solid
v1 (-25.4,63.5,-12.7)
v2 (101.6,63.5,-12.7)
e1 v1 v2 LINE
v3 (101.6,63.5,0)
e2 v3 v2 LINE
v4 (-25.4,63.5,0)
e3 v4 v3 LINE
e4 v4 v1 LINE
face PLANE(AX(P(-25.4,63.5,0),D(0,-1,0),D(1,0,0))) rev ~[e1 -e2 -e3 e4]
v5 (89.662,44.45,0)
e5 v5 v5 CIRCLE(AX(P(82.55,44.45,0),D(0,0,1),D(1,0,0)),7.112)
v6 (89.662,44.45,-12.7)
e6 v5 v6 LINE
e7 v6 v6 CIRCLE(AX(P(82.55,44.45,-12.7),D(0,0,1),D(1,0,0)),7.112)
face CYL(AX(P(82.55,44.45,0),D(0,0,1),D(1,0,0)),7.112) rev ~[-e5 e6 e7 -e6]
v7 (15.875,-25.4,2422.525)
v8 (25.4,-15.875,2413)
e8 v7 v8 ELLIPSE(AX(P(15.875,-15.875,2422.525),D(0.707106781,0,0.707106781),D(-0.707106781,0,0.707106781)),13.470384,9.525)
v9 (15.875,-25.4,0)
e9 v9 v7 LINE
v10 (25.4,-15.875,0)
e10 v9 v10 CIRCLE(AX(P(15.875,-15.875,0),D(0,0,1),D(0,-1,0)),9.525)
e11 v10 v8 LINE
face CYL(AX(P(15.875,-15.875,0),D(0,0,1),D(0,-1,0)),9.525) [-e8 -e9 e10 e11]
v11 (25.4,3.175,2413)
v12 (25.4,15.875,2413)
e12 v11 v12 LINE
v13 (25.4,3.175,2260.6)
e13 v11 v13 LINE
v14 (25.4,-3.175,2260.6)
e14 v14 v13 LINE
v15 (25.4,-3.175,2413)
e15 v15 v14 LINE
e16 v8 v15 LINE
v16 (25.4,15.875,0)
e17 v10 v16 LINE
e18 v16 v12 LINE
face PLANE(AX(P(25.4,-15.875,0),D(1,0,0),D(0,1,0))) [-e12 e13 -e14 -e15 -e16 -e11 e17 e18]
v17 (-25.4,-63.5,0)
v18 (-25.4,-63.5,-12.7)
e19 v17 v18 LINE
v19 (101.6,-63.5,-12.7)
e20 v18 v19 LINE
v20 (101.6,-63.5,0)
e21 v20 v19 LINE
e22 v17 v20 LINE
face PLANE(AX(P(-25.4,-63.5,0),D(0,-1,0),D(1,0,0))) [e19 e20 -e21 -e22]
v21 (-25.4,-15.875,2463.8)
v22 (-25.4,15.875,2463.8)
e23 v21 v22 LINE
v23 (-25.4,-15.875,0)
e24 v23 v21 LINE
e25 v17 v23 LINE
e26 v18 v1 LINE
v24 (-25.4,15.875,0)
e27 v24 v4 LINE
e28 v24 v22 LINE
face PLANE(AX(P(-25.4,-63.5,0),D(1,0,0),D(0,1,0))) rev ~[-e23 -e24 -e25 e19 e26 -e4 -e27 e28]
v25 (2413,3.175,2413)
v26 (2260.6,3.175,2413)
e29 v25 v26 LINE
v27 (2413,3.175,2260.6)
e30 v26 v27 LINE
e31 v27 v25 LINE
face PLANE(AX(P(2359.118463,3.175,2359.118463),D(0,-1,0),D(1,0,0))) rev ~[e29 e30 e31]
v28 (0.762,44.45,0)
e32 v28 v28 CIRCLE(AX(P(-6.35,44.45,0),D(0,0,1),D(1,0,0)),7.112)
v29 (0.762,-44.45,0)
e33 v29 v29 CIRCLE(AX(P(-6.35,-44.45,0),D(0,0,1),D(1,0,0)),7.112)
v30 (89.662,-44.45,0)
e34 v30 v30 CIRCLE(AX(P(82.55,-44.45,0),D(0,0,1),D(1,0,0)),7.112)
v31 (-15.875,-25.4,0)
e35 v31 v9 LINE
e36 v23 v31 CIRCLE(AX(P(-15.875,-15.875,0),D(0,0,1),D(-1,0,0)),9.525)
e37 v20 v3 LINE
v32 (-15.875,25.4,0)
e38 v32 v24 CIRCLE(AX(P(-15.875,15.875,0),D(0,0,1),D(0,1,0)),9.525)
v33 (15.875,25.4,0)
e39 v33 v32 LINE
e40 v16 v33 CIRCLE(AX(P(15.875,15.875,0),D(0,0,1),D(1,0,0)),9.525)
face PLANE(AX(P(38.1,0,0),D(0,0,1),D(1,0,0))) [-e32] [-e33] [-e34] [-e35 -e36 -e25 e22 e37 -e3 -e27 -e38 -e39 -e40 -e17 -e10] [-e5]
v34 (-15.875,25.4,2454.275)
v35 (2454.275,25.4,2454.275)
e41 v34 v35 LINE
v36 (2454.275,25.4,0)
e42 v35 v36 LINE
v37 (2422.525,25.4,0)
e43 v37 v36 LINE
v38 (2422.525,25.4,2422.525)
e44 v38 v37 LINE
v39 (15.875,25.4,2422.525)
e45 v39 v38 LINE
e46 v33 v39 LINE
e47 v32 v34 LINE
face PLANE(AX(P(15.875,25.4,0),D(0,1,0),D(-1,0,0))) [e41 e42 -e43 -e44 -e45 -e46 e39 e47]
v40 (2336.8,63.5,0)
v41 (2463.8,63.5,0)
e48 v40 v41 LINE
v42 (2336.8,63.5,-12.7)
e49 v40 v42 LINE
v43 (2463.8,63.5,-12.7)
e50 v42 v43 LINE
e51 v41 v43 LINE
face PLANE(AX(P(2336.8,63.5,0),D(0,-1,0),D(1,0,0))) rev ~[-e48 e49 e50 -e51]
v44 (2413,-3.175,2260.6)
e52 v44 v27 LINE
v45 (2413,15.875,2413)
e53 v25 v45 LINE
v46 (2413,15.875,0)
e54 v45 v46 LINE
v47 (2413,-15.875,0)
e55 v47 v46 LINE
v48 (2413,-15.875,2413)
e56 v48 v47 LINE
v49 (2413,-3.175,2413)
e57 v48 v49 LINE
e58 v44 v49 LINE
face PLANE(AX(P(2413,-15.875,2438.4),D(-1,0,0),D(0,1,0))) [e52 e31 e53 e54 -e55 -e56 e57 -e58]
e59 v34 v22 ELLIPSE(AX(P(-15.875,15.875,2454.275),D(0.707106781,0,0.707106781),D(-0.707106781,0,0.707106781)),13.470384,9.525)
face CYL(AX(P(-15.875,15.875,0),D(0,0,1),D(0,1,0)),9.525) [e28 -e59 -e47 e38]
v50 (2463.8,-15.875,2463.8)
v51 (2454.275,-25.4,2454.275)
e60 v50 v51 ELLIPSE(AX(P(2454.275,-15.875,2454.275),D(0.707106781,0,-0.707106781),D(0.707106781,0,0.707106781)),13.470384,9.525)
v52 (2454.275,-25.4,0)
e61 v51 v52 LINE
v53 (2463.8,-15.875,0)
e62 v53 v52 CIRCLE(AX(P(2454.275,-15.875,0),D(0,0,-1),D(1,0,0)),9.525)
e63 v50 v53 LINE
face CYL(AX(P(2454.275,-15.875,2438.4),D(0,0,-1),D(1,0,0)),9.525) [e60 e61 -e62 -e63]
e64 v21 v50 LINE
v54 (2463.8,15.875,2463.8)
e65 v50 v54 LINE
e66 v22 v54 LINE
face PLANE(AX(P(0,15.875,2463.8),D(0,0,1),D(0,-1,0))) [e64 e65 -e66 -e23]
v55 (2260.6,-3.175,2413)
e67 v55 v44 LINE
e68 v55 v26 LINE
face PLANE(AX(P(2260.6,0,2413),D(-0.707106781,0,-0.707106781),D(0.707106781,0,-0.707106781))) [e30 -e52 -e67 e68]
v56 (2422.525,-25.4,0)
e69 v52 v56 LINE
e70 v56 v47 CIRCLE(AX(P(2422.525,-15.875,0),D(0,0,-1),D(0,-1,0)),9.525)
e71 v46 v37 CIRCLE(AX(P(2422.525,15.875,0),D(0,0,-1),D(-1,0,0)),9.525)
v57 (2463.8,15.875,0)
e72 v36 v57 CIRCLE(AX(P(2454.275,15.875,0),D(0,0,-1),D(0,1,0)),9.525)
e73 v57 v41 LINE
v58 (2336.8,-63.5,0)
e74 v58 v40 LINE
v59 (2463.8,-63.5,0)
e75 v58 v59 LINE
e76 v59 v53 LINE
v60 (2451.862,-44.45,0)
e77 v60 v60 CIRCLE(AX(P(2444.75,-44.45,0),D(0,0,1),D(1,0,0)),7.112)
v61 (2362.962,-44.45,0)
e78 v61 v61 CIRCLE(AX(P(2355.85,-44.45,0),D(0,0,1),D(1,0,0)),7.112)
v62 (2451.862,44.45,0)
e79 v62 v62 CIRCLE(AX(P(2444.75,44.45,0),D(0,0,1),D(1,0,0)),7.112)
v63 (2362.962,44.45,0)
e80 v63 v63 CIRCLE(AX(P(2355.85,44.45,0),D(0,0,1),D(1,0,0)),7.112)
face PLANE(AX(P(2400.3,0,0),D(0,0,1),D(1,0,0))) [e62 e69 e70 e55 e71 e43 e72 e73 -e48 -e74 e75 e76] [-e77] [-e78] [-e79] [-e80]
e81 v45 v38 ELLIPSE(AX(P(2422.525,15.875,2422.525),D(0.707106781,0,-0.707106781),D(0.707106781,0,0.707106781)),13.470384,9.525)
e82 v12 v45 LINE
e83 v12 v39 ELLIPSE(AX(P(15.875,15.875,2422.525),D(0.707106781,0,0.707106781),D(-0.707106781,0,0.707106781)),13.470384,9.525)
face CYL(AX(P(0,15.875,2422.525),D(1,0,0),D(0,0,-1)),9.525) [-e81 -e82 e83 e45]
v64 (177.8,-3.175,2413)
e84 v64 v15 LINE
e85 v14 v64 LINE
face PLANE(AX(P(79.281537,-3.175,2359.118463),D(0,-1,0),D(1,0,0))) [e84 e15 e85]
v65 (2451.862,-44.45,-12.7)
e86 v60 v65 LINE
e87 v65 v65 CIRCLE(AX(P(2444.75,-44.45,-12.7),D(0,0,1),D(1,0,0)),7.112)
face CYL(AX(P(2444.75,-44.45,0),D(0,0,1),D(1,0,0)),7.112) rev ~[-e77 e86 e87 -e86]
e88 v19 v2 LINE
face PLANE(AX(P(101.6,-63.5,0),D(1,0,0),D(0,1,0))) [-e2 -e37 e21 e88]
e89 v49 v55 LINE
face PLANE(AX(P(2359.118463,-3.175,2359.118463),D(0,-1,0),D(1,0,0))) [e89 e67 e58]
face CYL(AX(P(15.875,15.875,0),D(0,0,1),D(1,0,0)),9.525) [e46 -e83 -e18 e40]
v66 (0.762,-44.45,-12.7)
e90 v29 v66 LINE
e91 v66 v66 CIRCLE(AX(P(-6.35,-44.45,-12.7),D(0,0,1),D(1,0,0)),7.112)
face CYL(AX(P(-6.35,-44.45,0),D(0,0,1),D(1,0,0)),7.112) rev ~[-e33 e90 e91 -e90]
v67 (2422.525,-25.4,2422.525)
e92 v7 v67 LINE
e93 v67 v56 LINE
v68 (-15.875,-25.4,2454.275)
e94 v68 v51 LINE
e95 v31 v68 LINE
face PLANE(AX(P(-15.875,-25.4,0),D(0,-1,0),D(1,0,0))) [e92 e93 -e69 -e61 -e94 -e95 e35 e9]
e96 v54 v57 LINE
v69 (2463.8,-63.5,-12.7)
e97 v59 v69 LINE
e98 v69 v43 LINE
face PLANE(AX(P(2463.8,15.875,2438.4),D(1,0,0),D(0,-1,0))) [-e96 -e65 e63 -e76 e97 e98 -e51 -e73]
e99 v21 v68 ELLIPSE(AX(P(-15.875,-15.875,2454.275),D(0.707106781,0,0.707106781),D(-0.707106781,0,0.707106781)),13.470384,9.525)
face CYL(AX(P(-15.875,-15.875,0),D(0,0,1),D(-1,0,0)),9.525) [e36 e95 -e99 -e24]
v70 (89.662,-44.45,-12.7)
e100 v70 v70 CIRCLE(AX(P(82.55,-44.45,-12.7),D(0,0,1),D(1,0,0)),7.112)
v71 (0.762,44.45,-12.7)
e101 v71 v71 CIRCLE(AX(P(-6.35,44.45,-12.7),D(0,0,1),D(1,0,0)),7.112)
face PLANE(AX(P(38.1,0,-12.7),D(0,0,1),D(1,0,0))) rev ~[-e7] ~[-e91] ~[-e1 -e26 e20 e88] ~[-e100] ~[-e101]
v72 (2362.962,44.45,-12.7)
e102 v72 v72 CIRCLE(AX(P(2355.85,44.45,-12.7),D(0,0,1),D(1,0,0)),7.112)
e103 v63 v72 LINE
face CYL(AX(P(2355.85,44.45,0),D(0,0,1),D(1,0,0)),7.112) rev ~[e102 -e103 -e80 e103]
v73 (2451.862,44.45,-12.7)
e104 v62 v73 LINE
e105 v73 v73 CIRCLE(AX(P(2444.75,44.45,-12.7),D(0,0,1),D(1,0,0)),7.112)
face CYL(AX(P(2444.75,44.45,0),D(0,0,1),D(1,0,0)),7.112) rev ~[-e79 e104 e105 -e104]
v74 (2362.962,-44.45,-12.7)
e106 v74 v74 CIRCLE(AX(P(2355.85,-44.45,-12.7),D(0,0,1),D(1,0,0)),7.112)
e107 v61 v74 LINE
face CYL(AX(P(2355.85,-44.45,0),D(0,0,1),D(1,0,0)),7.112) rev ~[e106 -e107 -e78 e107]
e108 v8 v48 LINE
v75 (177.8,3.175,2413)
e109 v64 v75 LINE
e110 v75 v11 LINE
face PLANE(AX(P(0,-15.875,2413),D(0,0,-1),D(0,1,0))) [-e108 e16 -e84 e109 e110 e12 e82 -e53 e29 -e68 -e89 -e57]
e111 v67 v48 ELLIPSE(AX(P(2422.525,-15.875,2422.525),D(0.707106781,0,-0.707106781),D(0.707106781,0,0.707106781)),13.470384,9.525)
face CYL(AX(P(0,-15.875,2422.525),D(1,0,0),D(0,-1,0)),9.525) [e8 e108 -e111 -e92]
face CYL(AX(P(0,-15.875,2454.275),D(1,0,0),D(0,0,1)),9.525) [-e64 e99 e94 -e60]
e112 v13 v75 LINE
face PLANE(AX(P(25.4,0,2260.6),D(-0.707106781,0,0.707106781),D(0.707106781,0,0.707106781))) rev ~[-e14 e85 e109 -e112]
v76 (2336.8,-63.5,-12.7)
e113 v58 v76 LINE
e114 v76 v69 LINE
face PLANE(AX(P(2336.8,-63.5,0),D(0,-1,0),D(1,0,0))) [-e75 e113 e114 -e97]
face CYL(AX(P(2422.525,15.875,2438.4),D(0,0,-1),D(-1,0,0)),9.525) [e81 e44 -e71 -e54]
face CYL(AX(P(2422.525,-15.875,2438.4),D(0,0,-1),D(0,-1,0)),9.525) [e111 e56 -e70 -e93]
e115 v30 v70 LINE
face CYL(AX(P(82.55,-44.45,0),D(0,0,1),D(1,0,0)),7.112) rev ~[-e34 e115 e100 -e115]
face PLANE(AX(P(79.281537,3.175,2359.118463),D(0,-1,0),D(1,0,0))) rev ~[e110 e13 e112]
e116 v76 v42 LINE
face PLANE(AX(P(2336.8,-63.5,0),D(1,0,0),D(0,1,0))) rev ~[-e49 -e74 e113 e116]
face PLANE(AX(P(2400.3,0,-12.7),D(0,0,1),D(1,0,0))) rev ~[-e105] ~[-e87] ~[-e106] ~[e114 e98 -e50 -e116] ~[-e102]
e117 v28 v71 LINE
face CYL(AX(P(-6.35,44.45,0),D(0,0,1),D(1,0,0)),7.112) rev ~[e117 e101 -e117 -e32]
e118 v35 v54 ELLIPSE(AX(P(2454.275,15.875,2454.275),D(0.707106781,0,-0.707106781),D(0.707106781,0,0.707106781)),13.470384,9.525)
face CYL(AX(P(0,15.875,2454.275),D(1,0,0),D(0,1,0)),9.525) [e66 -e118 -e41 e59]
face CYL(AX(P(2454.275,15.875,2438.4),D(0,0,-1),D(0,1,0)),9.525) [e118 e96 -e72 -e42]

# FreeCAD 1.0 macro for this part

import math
import FreeCAD as App
import Part
import Sketcher
Q = App.Units.Quantity

doc = App.newDocument("Part")
params = doc.addObject("Spreadsheet::Sheet", "Params")
for row, (alias, value) in enumerate([
    ("sketch1_radius", "0.375 in"),
    ("sketch2_width", "96 in"),
    ("sketch3_diameter", "0.56 in"),
    ("sketch3_width", "5 in"),
    ("pad1_length", "0.5 in"),
    ("sketch4_width", "6 in"),
    ("pad2_length", "0.25 in"),
], start=1):
    params.set(f"A{row}", alias)
    params.set(f"B{row}", "=" + value)
    params.setAlias(f"B{row}", alias)

body = doc.addObject("PartDesign::Body", "Body")

# Sketch on XY plane
sketch1 = body.newObject("Sketcher::SketchObject", "Sketch")
sketch1.AttachmentSupport = (doc.getObject("XY_Plane"), [""])
sketch1.MapMode = "FlatFace"
sketch1.addGeometry([
    Part.LineSegment(App.Vector(15.875, 25.4, 0), App.Vector(-15.875, 25.4, 0)),  # 0
    Part.ArcOfCircle(Part.Circle(App.Vector(-15.875, 15.875, 0), App.Vector(0, 0, 1), 9.525), math.radians(90), math.radians(180)),  # 1
    Part.LineSegment(App.Vector(-25.4, 15.875, 0), App.Vector(-25.4, -15.875, 0)),  # 2
    Part.ArcOfCircle(Part.Circle(App.Vector(-15.875, -15.875, 0), App.Vector(0, 0, 1), 9.525), math.radians(180), math.radians(270)),  # 3
    Part.LineSegment(App.Vector(-15.875, -25.4, 0), App.Vector(15.875, -25.4, 0)),  # 4
    Part.ArcOfCircle(Part.Circle(App.Vector(15.875, -15.875, 0), App.Vector(0, 0, 1), 9.525), math.radians(-90), math.radians(0)),  # 5
    Part.LineSegment(App.Vector(25.4, -15.875, 0), App.Vector(25.4, 15.875, 0)),  # 6
    Part.ArcOfCircle(Part.Circle(App.Vector(15.875, 15.875, 0), App.Vector(0, 0, 1), 9.525), math.radians(0), math.radians(90)),  # 7
], False)
sketch1.addConstraint([
    Sketcher.Constraint("Tangent", 0, 2, 1, 1),
    Sketcher.Constraint("Tangent", 1, 2, 2, 1),
    Sketcher.Constraint("Tangent", 2, 2, 3, 1),
    Sketcher.Constraint("Tangent", 3, 2, 4, 1),
    Sketcher.Constraint("Tangent", 4, 2, 5, 1),
    Sketcher.Constraint("Tangent", 5, 2, 6, 1),
    Sketcher.Constraint("Tangent", 6, 2, 7, 1),
    Sketcher.Constraint("Tangent", 7, 2, 0, 1),
    Sketcher.Constraint("Horizontal", 0),
    Sketcher.Constraint("Vertical", 2),
    Sketcher.Constraint("Horizontal", 4),
    Sketcher.Constraint("Vertical", 6),
    Sketcher.Constraint("Equal", 1, 3),
    Sketcher.Constraint("Equal", 3, 5),
    Sketcher.Constraint("Equal", 5, 7),
    Sketcher.Constraint("Symmetric", 1, 3, 5, 3, -1, 1),
    Sketcher.Constraint("Equal", 4, 2),
    Sketcher.Constraint("DistanceY", -1, 1, 0, 2, Q("1 in")),
    Sketcher.Constraint("Radius", 1, Q("0.375 in")),
])
sketch1.setExpression("Constraints[18]", "Params.sketch1_radius")

# Sketch on XZ plane
sketch2 = body.newObject("Sketcher::SketchObject", "Sketch001")
sketch2.AttachmentSupport = (doc.getObject("XZ_Plane"), [""])
sketch2.MapMode = "FlatFace"
sketch2.addGeometry([
    Part.LineSegment(App.Vector(0, 0, 0), App.Vector(0, 2438.4, 0)),
    Part.LineSegment(App.Vector(0, 2438.4, 0), App.Vector(2438.4, 2438.4, 0)),
    Part.LineSegment(App.Vector(2438.4, 2438.4, 0), App.Vector(2438.4, 0, 0)),
], False)
sketch2.addConstraint([
    Sketcher.Constraint("Coincident", 0, 2, 1, 1),
    Sketcher.Constraint("Coincident", 1, 2, 2, 1),
    Sketcher.Constraint("Vertical", 0),
    Sketcher.Constraint("Horizontal", 1),
    Sketcher.Constraint("Vertical", 2),
    Sketcher.Constraint("Coincident", 0, 1, -1, 1),
    Sketcher.Constraint("PointOnObject", 2, 2, -1),
    Sketcher.Constraint("Equal", 1, 0),
    Sketcher.Constraint("DistanceX", 1, 1, 1, 2, Q("96 in")),
])
sketch2.setExpression("Constraints[8]", "Params.sketch2_width")
doc.recompute()

additivepipe = body.newObject("PartDesign::AdditivePipe", "AdditivePipe")
additivepipe.Profile = sketch1
additivepipe.Spine = (sketch2, ["Edge1", "Edge2", "Edge3"])
additivepipe.Transition = "Right corner"

# Sketch on XY plane
sketch3 = body.newObject("Sketcher::SketchObject", "Sketch002")
sketch3.AttachmentSupport = (doc.getObject("XY_Plane"), [""])
sketch3.MapMode = "FlatFace"
sketch3.addGeometry([
    Part.LineSegment(App.Vector(-25.4, 63.5, 0), App.Vector(-25.4, -63.5, 0)),  # 0
    Part.LineSegment(App.Vector(-25.4, -63.5, 0), App.Vector(101.6, -63.5, 0)),  # 1
    Part.LineSegment(App.Vector(101.6, -63.5, 0), App.Vector(101.6, 63.5, 0)),  # 2
    Part.LineSegment(App.Vector(101.6, 63.5, 0), App.Vector(-25.4, 63.5, 0)),  # 3
    Part.Circle(App.Vector(-6.35, -44.45, 0), App.Vector(0, 0, 1), 7.112),  # 4
    Part.Circle(App.Vector(82.55, -44.45, 0), App.Vector(0, 0, 1), 7.112),  # 5
    Part.Circle(App.Vector(-6.35, 44.45, 0), App.Vector(0, 0, 1), 7.112),  # 6
    Part.Circle(App.Vector(82.55, 44.45, 0), App.Vector(0, 0, 1), 7.112),  # 7
    Part.LineSegment(App.Vector(2336.8, 63.5, 0), App.Vector(2336.8, -63.5, 0)),  # 8
    Part.LineSegment(App.Vector(2336.8, -63.5, 0), App.Vector(2463.8, -63.5, 0)),  # 9
    Part.LineSegment(App.Vector(2463.8, -63.5, 0), App.Vector(2463.8, 63.5, 0)),  # 10
    Part.LineSegment(App.Vector(2463.8, 63.5, 0), App.Vector(2336.8, 63.5, 0)),  # 11
    Part.Circle(App.Vector(2355.85, -44.45, 0), App.Vector(0, 0, 1), 7.112),  # 12
    Part.Circle(App.Vector(2444.75, -44.45, 0), App.Vector(0, 0, 1), 7.112),  # 13
    Part.Circle(App.Vector(2355.85, 44.45, 0), App.Vector(0, 0, 1), 7.112),  # 14
    Part.Circle(App.Vector(2444.75, 44.45, 0), App.Vector(0, 0, 1), 7.112),  # 15
], False)
sketch3.addConstraint([
    Sketcher.Constraint("Coincident", 0, 2, 1, 1),
    Sketcher.Constraint("Coincident", 1, 2, 2, 1),
    Sketcher.Constraint("Coincident", 2, 2, 3, 1),
    Sketcher.Constraint("Coincident", 3, 2, 0, 1),
    Sketcher.Constraint("Coincident", 8, 2, 9, 1),
    Sketcher.Constraint("Coincident", 9, 2, 10, 1),
    Sketcher.Constraint("Coincident", 10, 2, 11, 1),
    Sketcher.Constraint("Coincident", 11, 2, 8, 1),
    Sketcher.Constraint("Vertical", 0),
    Sketcher.Constraint("Horizontal", 1),
    Sketcher.Constraint("Vertical", 2),
    Sketcher.Constraint("Horizontal", 3),
    Sketcher.Constraint("Vertical", 8),
    Sketcher.Constraint("Horizontal", 9),
    Sketcher.Constraint("Vertical", 10),
    Sketcher.Constraint("Horizontal", 11),
    Sketcher.Constraint("Equal", 4, 5),
    Sketcher.Constraint("Equal", 5, 6),
    Sketcher.Constraint("Equal", 6, 7),
    Sketcher.Constraint("Equal", 7, 12),
    Sketcher.Constraint("Equal", 12, 13),
    Sketcher.Constraint("Equal", 13, 14),
    Sketcher.Constraint("Equal", 14, 15),
    Sketcher.Constraint("Symmetric", 4, 3, 6, 3, -1),
    Sketcher.Constraint("Symmetric", 5, 3, 7, 3, -1),
    Sketcher.Constraint("Symmetric", 12, 3, 14, 3, -1),
    Sketcher.Constraint("Symmetric", 13, 3, 15, 3, -1),
    Sketcher.Constraint("Horizontal", 4, 3, 5, 3),
    Sketcher.Constraint("Horizontal", 5, 3, 12, 3),
    Sketcher.Constraint("Horizontal", 12, 3, 13, 3),
    Sketcher.Constraint("Horizontal", 1, 2, 8, 2),
    Sketcher.Constraint("Horizontal", 3, 2, 10, 2),
    Sketcher.Constraint("Equal", 3, 9),
    Sketcher.Constraint("Equal", 11, 0),
    Sketcher.Constraint("Diameter", 4, Q("0.56 in")),
    Sketcher.Constraint("DistanceX", 1, 1, 1, 2, Q("5 in")),
    Sketcher.Constraint("DistanceX", 0, 2, -1, 1, Q("1 in")),
    Sketcher.Constraint("DistanceX", -1, 1, 8, 2, Q("92 in")),
    Sketcher.Constraint("DistanceX", 4, 3, 12, 3, Q("93 in")),
    Sketcher.Constraint("DistanceX", 5, 3, 13, 3, Q("93 in")),
    Sketcher.Constraint("DistanceY", 0, 2, -1, 1, Q("2.5 in")),
    Sketcher.Constraint("DistanceX", 4, 3, 5, 3, Q("3.5 in")),
    Sketcher.Constraint("DistanceY", 4, 3, 6, 3, Q("3.5 in")),
    Sketcher.Constraint("DistanceX", 4, 3, -1, 1, Q("0.25 in")),
])
sketch3.setExpression("Constraints[34]", "Params.sketch3_diameter")
sketch3.setExpression("Constraints[35]", "Params.sketch3_width")
pad1 = body.newObject("PartDesign::Pad", "Pad")
pad1.Profile = sketch3
pad1.setExpression("Length", "Params.pad1_length")
pad1.Reversed = True

# Sketch on XZ plane
sketch4 = body.newObject("Sketcher::SketchObject", "Sketch003")
sketch4.AttachmentSupport = (doc.getObject("XZ_Plane"), [""])
sketch4.MapMode = "FlatFace"
sketch4.addGeometry([
    Part.LineSegment(App.Vector(177.8, 2413, 0), App.Vector(25.4, 2413, 0)),  # 0
    Part.LineSegment(App.Vector(25.4, 2413, 0), App.Vector(25.4, 2260.6, 0)),  # 1
    Part.LineSegment(App.Vector(25.4, 2260.6, 0), App.Vector(177.8, 2413, 0)),  # 2
    Part.LineSegment(App.Vector(2413, 2260.6, 0), App.Vector(2413, 2413, 0)),  # 3
    Part.LineSegment(App.Vector(2413, 2413, 0), App.Vector(2260.6, 2413, 0)),  # 4
    Part.LineSegment(App.Vector(2260.6, 2413, 0), App.Vector(2413, 2260.6, 0)),  # 5
], False)
sketch4.addConstraint([
    Sketcher.Constraint("Coincident", 0, 2, 1, 1),
    Sketcher.Constraint("Coincident", 1, 2, 2, 1),
    Sketcher.Constraint("Coincident", 2, 2, 0, 1),
    Sketcher.Constraint("Coincident", 3, 2, 4, 1),
    Sketcher.Constraint("Coincident", 4, 2, 5, 1),
    Sketcher.Constraint("Coincident", 5, 2, 3, 1),
    Sketcher.Constraint("Horizontal", 0),
    Sketcher.Constraint("Vertical", 1),
    Sketcher.Constraint("Vertical", 3),
    Sketcher.Constraint("Horizontal", 4),
    Sketcher.Constraint("Perpendicular", 2, 5),
    Sketcher.Constraint("Horizontal", 2, 2, 3, 2),
    Sketcher.Constraint("Horizontal", 1, 2, 5, 2),
    Sketcher.Constraint("Equal", 0, 4),
    Sketcher.Constraint("DistanceX", 0, 2, 0, 1, Q("6 in")),
    Sketcher.Constraint("DistanceX", -1, 1, 0, 2, Q("1 in")),
    Sketcher.Constraint("DistanceY", -1, 1, 0, 2, Q("95 in")),
    Sketcher.Constraint("DistanceX", -1, 1, 3, 2, Q("95 in")),
])
sketch4.setExpression("Constraints[14]", "Params.sketch4_width")
pad2 = body.newObject("PartDesign::Pad", "Pad001")
pad2.Profile = sketch4
pad2.setExpression("Length", "Params.pad2_length")
pad2.Midplane = True

doc.recompute()
